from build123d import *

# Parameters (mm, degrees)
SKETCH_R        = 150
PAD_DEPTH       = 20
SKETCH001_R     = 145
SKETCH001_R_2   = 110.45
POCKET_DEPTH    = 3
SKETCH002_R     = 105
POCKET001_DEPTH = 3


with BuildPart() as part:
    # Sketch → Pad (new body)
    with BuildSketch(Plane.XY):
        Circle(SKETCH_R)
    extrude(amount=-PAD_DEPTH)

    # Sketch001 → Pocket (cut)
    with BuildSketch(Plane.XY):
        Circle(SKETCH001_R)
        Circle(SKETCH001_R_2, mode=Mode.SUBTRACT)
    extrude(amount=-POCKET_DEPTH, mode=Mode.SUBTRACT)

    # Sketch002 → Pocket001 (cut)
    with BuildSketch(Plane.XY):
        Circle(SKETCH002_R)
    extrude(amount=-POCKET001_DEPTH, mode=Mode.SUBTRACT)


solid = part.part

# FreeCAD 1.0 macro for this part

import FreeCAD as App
import Part
import Sketcher

V = App.Vector
Q = App.Units.Quantity

doc = App.newDocument("Part")
params = doc.addObject("Spreadsheet::Sheet", "Params")
for row, (alias, value) in enumerate([
    ("sketch1_diameter", "300 mm"),
    ("pad1_length", "20 mm"),
    ("sketch2_diameter", "290 mm"),
    ("sketch2_diameter2", "220.9 mm"),
    ("pocket1_length", "3 mm"),
    ("sketch3_diameter", "210 mm"),
    ("pocket2_length", "3 mm"),
], start=1):
    params.set(f"A{row}", alias)
    params.set(f"B{row}", "=" + value)
    params.setAlias(f"B{row}", alias)

body = doc.addObject("PartDesign::Body", "Body")

# Sketch on XY plane
sketch1 = doc.addObject("Sketcher::SketchObject", "Sketch")
body.addObject(sketch1)
sketch1.AttachmentSupport = (doc.XY_Plane, [""])
sketch1.MapMode = "FlatFace"
sketch1.addGeometry(Part.Circle(V(0, 0, 0), V(0, 0, 1), 150), False)
sketch1.addConstraint(Sketcher.Constraint("Coincident", 0, 3, -1, 1))
sketch1.addConstraint(Sketcher.Constraint("Diameter", 0, Q("300 mm")))
sketch1.setExpression("Constraints[1]", "Params.sketch1_diameter")
pad1 = doc.addObject("PartDesign::Pad", "Pad")
body.addObject(pad1)
pad1.Profile = sketch1
pad1.setExpression("Length", "Params.pad1_length")
pad1.Reversed = True

# Sketch on XY plane
sketch2 = doc.addObject("Sketcher::SketchObject", "Sketch001")
body.addObject(sketch2)
sketch2.AttachmentSupport = (doc.XY_Plane, [""])
sketch2.MapMode = "FlatFace"
sketch2.addGeometry(Part.Circle(V(0, 0, 0), V(0, 0, 1), 145), False)
sketch2.addGeometry(Part.Circle(V(0, 0, 0), V(0, 0, 1), 110), False)
sketch2.addConstraint(Sketcher.Constraint("Coincident", 0, 3, -1, 1))
sketch2.addConstraint(Sketcher.Constraint("Coincident", 1, 3, -1, 1))
sketch2.addConstraint(Sketcher.Constraint("Diameter", 0, Q("290 mm")))
sketch2.addConstraint(Sketcher.Constraint("Diameter", 1, Q("220.9 mm")))
sketch2.setExpression("Constraints[2]", "Params.sketch2_diameter")
sketch2.setExpression("Constraints[3]", "Params.sketch2_diameter2")
pocket1 = doc.addObject("PartDesign::Pocket", "Pocket")
body.addObject(pocket1)
pocket1.Profile = sketch2
pocket1.setExpression("Length", "Params.pocket1_length")

# Sketch on XY plane
sketch3 = doc.addObject("Sketcher::SketchObject", "Sketch002")
body.addObject(sketch3)
sketch3.AttachmentSupport = (doc.XY_Plane, [""])
sketch3.MapMode = "FlatFace"
sketch3.addGeometry(Part.Circle(V(0, 0, 0), V(0, 0, 1), 105), False)
sketch3.addConstraint(Sketcher.Constraint("Coincident", 0, 3, -1, 1))
sketch3.addConstraint(Sketcher.Constraint("Diameter", 0, Q("210 mm")))
sketch3.setExpression("Constraints[1]", "Params.sketch3_diameter")
pocket2 = doc.addObject("PartDesign::Pocket", "Pocket001")
body.addObject(pocket2)
pocket2.Profile = sketch3
pocket2.setExpression("Length", "Params.pocket2_length")

doc.recompute()
